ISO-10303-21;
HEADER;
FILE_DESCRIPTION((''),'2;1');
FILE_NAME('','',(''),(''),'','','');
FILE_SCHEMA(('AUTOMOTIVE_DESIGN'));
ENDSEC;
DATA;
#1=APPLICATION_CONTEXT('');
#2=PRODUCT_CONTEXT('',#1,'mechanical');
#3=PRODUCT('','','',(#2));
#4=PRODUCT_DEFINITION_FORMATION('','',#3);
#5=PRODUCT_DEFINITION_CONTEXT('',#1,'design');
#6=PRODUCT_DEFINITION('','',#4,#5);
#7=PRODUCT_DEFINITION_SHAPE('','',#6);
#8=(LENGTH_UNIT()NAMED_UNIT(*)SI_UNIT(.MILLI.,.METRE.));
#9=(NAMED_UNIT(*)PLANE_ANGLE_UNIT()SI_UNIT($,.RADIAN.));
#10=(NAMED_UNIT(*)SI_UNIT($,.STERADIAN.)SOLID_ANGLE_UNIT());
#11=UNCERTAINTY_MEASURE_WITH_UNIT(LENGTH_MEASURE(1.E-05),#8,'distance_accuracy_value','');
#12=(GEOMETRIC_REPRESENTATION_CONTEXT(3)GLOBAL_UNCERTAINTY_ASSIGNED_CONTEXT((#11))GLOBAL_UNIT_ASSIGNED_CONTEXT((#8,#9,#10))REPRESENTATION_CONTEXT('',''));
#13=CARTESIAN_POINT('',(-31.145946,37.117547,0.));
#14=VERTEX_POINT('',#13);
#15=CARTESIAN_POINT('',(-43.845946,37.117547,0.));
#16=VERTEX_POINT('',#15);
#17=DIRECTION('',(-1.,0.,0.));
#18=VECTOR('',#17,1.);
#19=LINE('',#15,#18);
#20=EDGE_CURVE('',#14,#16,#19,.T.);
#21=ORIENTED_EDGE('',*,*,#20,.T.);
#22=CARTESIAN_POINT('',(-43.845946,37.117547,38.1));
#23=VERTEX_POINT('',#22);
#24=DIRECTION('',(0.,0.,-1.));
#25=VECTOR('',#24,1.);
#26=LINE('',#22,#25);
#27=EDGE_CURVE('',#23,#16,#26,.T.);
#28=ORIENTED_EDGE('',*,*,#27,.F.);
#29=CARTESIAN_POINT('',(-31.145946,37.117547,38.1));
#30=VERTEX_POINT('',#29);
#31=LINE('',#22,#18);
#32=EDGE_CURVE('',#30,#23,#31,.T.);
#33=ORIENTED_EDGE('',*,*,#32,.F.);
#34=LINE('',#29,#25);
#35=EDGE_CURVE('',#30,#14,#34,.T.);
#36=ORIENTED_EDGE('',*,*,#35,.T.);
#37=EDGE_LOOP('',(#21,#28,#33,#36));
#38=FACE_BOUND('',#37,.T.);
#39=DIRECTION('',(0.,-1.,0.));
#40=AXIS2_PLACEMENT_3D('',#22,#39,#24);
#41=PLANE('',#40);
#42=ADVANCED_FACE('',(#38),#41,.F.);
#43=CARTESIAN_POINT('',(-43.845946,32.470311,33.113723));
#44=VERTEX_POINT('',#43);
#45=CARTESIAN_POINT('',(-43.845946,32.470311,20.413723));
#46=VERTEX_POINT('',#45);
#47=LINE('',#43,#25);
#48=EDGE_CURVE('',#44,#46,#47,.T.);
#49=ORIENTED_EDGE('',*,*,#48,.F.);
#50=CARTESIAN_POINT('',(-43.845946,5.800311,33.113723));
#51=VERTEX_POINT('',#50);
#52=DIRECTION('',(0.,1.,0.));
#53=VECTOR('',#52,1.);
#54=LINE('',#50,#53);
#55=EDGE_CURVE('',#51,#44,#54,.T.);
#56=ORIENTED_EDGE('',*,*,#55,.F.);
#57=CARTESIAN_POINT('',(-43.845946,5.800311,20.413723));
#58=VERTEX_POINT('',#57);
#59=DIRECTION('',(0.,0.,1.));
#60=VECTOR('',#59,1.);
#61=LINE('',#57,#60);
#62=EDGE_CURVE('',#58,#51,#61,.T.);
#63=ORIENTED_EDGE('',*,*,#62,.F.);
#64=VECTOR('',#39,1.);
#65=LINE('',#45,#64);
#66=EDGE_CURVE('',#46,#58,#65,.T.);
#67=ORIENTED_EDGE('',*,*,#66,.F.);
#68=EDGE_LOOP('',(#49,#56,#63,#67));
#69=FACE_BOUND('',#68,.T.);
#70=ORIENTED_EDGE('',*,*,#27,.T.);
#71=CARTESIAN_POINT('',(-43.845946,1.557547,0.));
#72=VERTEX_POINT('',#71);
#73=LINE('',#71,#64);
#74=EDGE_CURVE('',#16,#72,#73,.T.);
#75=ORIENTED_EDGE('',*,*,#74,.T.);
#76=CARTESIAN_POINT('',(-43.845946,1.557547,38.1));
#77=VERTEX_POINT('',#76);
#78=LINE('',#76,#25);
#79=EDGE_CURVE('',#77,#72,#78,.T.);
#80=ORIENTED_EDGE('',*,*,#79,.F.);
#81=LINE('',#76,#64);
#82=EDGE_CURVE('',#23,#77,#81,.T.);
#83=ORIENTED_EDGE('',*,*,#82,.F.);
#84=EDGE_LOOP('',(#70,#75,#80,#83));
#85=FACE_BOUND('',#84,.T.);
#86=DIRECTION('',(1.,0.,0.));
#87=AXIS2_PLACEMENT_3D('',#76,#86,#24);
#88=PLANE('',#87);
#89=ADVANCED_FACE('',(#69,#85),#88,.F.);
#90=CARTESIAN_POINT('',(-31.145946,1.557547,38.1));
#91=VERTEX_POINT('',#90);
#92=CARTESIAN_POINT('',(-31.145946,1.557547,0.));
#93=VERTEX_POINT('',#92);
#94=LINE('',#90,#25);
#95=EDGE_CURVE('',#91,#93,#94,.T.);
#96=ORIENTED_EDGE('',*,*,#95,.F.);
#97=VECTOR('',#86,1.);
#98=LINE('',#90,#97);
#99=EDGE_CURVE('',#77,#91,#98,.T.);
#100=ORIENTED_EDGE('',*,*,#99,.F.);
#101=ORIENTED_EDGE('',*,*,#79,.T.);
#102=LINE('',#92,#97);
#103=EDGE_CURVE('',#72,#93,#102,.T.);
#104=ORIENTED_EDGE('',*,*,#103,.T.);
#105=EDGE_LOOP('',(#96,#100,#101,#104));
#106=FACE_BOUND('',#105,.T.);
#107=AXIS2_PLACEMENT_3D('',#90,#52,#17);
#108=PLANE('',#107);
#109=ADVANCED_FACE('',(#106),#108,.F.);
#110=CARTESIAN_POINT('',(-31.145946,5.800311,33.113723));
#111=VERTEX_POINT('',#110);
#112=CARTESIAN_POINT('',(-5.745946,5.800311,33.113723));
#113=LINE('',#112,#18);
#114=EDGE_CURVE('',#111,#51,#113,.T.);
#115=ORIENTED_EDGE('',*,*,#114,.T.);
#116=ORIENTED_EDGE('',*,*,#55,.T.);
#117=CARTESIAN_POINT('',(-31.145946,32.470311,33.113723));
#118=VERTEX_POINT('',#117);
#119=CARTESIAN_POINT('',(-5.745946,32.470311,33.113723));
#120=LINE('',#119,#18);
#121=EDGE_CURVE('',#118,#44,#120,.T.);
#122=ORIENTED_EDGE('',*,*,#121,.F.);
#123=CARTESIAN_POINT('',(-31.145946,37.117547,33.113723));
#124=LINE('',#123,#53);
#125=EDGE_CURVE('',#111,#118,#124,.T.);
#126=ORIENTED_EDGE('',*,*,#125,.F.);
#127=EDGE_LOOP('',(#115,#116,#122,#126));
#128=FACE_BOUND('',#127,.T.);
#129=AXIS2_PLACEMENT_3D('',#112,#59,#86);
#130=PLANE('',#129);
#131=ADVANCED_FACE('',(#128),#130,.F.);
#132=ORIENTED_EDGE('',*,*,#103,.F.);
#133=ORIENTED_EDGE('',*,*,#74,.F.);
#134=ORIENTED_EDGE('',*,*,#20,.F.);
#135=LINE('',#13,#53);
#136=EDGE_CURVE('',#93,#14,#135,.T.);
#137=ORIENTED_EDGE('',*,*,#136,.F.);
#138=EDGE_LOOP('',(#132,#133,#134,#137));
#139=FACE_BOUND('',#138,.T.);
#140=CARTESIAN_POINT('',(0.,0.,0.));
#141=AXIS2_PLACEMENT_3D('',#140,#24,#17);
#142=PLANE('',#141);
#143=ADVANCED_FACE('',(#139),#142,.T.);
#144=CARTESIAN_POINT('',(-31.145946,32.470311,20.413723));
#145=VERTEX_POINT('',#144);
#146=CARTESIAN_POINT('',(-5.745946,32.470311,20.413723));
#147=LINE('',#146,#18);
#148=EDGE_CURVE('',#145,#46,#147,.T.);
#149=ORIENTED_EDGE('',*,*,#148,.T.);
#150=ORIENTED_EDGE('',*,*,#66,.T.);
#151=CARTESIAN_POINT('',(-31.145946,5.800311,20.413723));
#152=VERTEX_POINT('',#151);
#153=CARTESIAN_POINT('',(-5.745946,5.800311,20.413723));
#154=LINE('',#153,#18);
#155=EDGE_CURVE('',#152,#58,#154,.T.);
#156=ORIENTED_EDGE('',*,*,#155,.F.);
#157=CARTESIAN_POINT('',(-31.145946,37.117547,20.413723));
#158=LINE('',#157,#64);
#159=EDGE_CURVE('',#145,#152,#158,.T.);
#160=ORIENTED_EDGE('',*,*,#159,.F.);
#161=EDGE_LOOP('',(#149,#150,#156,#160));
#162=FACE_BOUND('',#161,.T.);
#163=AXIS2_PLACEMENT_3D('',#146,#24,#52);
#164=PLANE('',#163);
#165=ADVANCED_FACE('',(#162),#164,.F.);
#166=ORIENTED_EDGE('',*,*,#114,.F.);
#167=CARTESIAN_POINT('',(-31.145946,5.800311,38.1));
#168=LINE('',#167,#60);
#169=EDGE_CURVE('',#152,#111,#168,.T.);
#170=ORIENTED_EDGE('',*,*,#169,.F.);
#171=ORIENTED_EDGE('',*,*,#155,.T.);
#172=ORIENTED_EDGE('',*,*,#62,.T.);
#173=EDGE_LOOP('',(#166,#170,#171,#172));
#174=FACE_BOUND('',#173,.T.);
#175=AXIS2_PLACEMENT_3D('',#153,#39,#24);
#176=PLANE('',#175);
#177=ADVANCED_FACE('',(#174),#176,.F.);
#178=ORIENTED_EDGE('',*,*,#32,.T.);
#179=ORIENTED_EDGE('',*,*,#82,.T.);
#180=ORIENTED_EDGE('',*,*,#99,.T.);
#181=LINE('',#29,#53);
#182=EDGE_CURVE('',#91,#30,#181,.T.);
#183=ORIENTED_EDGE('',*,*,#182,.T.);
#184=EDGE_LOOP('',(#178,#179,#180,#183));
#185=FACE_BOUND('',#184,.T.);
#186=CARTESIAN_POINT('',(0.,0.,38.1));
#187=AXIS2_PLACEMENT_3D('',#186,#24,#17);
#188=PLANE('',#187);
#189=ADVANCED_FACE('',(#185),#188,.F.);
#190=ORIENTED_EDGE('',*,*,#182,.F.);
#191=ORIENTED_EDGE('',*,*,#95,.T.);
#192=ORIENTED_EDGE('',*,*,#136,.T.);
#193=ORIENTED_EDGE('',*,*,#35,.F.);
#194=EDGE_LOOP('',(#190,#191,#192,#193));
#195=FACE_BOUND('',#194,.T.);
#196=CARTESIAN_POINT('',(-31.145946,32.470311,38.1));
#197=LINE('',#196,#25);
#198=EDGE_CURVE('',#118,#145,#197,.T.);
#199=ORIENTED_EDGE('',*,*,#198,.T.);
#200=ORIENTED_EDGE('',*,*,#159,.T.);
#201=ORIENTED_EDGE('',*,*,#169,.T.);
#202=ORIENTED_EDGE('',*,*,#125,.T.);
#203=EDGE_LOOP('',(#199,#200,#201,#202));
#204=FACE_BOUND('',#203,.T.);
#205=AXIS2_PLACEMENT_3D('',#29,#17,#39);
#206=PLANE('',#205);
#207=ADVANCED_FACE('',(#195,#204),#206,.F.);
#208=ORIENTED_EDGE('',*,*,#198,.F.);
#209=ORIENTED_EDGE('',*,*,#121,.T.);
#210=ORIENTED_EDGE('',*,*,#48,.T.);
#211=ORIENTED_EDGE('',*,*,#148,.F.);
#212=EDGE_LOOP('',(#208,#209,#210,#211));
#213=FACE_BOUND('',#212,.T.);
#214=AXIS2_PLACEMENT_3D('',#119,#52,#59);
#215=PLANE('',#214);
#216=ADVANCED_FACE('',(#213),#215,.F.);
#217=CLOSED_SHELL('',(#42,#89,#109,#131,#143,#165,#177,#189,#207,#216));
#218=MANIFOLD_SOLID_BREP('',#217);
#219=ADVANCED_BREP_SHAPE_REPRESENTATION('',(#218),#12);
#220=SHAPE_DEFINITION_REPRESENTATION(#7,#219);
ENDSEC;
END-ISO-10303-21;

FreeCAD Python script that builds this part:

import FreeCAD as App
import Part
import Sketcher
Q = App.Units.Quantity


def add_polygon(sketch, points):
    """Adds a closed chain of lines whose ends are joined by coincident constraints."""
    first, n = sketch.GeometryCount, len(points)
    for a, b in zip(points, points[1:] + points[:1]):
        sketch.addGeometry(Part.LineSegment(App.Vector(*a, 0), App.Vector(*b, 0)), False)
    for i in range(n):
        sketch.addConstraint(Sketcher.Constraint("Coincident", first + i, 2, first + (i + 1) % n, 1))

doc = App.newDocument("Part")
body = doc.addObject("PartDesign::Body", "Body")

# Sketch on XY plane
sketch1 = body.newObject("Sketcher::SketchObject", "Sketch")
sketch1.AttachmentSupport = (doc.getObject("XY_Plane"), [""])
sketch1.MapMode = "FlatFace"
add_polygon(sketch1, [(-43.845946, 37.117547), (-43.845946, 1.557547), (-31.145946, 1.557547), (-31.145946, 37.117547)])  # lines 0-3
sketch1.addConstraint(Sketcher.Constraint("Vertical", 0))
sketch1.addConstraint(Sketcher.Constraint("Horizontal", 1))
sketch1.addConstraint(Sketcher.Constraint("Vertical", 2))
sketch1.addConstraint(Sketcher.Constraint("Horizontal", 3))
sketch1.addConstraint(Sketcher.Constraint("DistanceX", 1, 1, 1, 2, Q("0.5 in")))
sketch1.addConstraint(Sketcher.Constraint("DistanceY", 0, 2, 0, 1, Q("1.4 in")))
sketch1.addConstraint(Sketcher.Constraint("DistanceX", 0, 2, -1, 1, Q("43.845946 mm")))
sketch1.addConstraint(Sketcher.Constraint("DistanceY", -1, 1, 0, 2, Q("1.557547 mm")))
pad1 = body.newObject("PartDesign::Pad", "Pad")
pad1.Profile = sketch1
pad1.Length = Q("1.5 in")

# Sketch on YZ plane
sketch2 = body.newObject("Sketcher::SketchObject", "Sketch001")
sketch2.AttachmentSupport = (doc.getObject("YZ_Plane"), [""])
sketch2.MapMode = "FlatFace"
sketch2.AttachmentOffset = App.Placement(App.Vector(0, 0, -43.845946), App.Rotation())
add_polygon(sketch2, [(32.470311, 20.413723), (5.800311, 20.413723), (5.800311, 33.113723), (32.470311, 33.113723)])  # lines 0-3
sketch2.addConstraint(Sketcher.Constraint("Horizontal", 0))
sketch2.addConstraint(Sketcher.Constraint("Vertical", 1))
sketch2.addConstraint(Sketcher.Constraint("Horizontal", 2))
sketch2.addConstraint(Sketcher.Constraint("Vertical", 3))
sketch2.addConstraint(Sketcher.Constraint("DistanceY", 1, 1, 1, 2, Q("0.5 in")))
sketch2.addConstraint(Sketcher.Constraint("DistanceX", 0, 2, 0, 1, Q("1.05 in")))
sketch2.addConstraint(Sketcher.Constraint("DistanceX", -1, 1, 0, 2, Q("5.800311 mm")))
sketch2.addConstraint(Sketcher.Constraint("DistanceY", -1, 1, 0, 2, Q("20.413723 mm")))
pocket1 = body.newObject("PartDesign::Pocket", "Pocket")
pocket1.Profile = sketch2
pocket1.Length = Q("1.5 in")
pocket1.Reversed = True

doc.recompute()
